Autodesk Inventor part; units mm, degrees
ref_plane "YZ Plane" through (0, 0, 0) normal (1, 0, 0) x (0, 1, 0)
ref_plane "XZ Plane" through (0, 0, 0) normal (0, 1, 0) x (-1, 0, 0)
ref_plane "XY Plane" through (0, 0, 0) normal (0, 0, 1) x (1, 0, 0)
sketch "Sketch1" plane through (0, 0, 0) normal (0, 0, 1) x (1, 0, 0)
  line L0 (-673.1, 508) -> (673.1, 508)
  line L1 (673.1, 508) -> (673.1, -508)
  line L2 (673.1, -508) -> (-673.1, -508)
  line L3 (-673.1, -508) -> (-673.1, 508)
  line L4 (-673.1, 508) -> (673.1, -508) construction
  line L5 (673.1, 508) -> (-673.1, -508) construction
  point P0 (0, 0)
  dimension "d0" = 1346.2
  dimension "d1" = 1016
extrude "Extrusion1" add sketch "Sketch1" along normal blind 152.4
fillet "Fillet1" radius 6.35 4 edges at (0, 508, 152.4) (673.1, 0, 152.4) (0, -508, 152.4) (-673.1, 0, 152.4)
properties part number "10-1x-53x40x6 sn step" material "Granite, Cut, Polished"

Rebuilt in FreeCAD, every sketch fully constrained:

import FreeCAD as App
import Part
import Sketcher
Q = App.Units.Quantity


def edges_at(feature, points):
    """Names of the edges that pass closest to the given points."""
    edges = feature.Shape.Edges
    near = lambda p: min(range(len(edges)), key=lambda i: edges[i].distToShape(Part.Vertex(*p))[0])
    return sorted({f"Edge{near(p) + 1}" for p in points})


def add_polygon(sketch, points):
    """Adds a closed chain of lines whose ends are joined by coincident constraints."""
    first, n = sketch.GeometryCount, len(points)
    for a, b in zip(points, points[1:] + points[:1]):
        sketch.addGeometry(Part.LineSegment(App.Vector(*a, 0), App.Vector(*b, 0)), False)
    for i in range(n):
        sketch.addConstraint(Sketcher.Constraint("Coincident", first + i, 2, first + (i + 1) % n, 1))

doc = App.newDocument("Part")
params = doc.addObject("Spreadsheet::Sheet", "Params")
for row, (alias, value) in enumerate([
    ("sketch1_width", "53 in"),
    ("sketch1_height", "40 in"),
    ("pad1_length", "6 in"),
    ("fillet_radius", "0.25 in"),
], start=1):
    params.set(f"A{row}", alias)
    params.set(f"B{row}", "=" + value)
    params.setAlias(f"B{row}", alias)

body = doc.addObject("PartDesign::Body", "Body")

sketch1 = body.newObject("Sketcher::SketchObject", "Sketch")
sketch1.AttachmentSupport = (doc.getObject("XY_Plane"), [""])
sketch1.MapMode = "FlatFace"
add_polygon(sketch1, [(673, 508), (-673, 508), (-673, -508), (673, -508)])
sketch1.addConstraint(Sketcher.Constraint("Horizontal", 0))
sketch1.addConstraint(Sketcher.Constraint("Vertical", 1))
sketch1.addConstraint(Sketcher.Constraint("Horizontal", 2))
sketch1.addConstraint(Sketcher.Constraint("Vertical", 3))
sketch1.addConstraint(Sketcher.Constraint("Symmetric", 0, 2, 2, 2, -1, 1))
sketch1.addConstraint(Sketcher.Constraint("DistanceX", 0, 2, 0, 1, Q("53 in")))
sketch1.addConstraint(Sketcher.Constraint("DistanceY", 1, 2, 1, 1, Q("40 in")))
sketch1.setExpression("Constraints[9]", "Params.sketch1_width")
sketch1.setExpression("Constraints[10]", "Params.sketch1_height")
pad1 = body.newObject("PartDesign::Pad", "Pad")
pad1.Profile = sketch1
pad1.setExpression("Length", "Params.pad1_length")
doc.recompute()

fillet = body.newObject("PartDesign::Fillet", "Fillet")
fillet.Base = (pad1, edges_at(pad1, [
    (0, 508, 152.4),
    (673.1, 0, 152.4),
    (0, -508, 152.4),
    (-673.1, 0, 152.4),
]))
fillet.setExpression("Radius", "Params.fillet_radius")

doc.recompute()
